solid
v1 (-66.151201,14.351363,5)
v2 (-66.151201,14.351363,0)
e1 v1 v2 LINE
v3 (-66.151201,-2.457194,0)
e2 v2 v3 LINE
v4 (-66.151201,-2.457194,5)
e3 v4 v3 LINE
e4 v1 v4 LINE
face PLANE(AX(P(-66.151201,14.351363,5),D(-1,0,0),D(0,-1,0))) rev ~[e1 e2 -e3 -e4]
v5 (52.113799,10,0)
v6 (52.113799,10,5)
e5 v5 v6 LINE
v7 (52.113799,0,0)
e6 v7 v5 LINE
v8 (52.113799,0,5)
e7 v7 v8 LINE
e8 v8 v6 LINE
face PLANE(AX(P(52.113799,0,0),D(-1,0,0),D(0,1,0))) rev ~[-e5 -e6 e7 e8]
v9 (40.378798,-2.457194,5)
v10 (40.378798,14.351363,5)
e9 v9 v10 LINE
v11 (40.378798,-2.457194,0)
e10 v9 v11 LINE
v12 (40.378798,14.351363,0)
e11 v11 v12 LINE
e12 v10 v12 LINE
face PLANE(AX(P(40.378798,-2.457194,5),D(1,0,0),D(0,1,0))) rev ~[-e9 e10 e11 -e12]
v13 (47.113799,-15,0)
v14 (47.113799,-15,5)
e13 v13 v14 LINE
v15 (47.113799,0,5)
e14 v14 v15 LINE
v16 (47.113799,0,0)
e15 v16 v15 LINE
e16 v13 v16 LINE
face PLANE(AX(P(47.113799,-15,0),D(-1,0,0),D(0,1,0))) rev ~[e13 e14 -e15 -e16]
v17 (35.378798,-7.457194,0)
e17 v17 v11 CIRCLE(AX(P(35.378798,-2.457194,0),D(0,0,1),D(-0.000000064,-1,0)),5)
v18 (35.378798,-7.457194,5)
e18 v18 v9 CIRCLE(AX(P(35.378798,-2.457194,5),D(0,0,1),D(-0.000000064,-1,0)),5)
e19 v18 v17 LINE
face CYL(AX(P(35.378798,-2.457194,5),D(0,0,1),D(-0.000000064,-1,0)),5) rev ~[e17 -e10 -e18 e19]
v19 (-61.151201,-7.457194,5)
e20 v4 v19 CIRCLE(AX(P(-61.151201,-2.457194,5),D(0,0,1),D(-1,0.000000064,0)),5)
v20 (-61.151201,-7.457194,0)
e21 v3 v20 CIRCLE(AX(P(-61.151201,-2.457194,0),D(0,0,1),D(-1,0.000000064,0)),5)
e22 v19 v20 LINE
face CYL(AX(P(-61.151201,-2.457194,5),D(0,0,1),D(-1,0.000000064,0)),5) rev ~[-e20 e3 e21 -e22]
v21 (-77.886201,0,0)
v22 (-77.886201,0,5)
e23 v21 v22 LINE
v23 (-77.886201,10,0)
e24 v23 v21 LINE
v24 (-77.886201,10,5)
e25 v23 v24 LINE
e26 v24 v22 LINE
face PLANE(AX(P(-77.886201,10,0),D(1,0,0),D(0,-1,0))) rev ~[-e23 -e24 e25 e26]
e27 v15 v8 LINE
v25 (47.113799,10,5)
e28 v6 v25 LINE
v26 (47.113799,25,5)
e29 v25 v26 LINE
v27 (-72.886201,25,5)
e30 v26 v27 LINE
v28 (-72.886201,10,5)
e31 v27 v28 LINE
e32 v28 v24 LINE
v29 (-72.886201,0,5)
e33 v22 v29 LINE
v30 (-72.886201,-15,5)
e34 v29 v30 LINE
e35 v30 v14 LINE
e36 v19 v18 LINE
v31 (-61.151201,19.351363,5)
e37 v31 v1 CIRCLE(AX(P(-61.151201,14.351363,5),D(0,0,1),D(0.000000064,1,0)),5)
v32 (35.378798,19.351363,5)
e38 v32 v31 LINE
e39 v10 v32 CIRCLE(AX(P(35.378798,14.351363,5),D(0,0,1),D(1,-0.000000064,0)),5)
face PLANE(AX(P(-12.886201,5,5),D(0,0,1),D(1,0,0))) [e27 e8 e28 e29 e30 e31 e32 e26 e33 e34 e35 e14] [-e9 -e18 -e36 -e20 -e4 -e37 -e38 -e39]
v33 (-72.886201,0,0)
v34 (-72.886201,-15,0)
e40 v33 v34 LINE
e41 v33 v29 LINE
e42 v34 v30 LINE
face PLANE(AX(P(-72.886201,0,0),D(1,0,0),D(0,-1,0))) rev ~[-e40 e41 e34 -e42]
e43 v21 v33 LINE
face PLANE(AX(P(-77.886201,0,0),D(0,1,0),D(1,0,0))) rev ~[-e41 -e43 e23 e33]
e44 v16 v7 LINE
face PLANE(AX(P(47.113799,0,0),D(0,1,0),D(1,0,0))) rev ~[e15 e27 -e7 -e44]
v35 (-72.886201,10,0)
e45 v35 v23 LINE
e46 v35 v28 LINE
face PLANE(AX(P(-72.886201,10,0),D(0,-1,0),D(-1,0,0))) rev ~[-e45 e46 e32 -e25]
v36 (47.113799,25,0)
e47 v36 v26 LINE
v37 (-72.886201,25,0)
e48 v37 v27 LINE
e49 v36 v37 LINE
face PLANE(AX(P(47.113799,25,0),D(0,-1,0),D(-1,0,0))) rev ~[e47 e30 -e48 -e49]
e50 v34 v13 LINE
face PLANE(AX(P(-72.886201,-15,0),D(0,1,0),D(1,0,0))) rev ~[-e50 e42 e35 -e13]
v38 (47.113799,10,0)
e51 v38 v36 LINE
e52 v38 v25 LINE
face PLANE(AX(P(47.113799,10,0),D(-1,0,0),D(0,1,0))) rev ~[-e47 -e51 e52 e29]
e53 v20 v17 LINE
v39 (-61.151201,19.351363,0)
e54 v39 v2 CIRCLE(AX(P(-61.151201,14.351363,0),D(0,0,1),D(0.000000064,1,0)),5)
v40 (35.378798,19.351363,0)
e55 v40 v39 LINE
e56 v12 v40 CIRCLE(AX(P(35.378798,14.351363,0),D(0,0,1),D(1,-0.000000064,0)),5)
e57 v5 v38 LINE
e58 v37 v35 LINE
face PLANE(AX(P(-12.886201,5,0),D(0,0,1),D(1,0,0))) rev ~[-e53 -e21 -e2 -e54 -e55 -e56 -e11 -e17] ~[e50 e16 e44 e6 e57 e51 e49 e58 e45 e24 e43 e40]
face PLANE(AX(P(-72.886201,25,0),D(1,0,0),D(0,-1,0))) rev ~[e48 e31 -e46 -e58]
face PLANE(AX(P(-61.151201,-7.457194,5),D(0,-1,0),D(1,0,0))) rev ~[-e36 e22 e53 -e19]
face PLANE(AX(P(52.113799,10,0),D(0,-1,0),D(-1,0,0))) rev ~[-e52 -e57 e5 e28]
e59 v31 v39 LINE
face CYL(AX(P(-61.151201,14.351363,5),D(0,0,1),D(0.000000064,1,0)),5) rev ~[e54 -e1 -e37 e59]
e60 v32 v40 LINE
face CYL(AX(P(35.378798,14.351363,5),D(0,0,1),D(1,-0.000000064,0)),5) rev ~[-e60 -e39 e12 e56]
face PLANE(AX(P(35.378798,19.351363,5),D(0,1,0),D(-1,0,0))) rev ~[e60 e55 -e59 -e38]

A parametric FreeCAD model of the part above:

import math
import FreeCAD as App
import Part
import Sketcher
from FreeCAD import Vector
Q = App.Units.Quantity

doc = App.newDocument("Part")
body = doc.addObject("PartDesign::Body", "Body")

# Sketch on XY plane
sketch1 = doc.addObject("Sketcher::SketchObject", "Sketch")
body.addObject(sketch1)
sketch1.AttachmentSupport = (doc.XY_Plane, [""])
sketch1.MapMode = "FlatFace"
sketch1.addGeometry([
    Part.LineSegment(Vector(47.113799, 25, 0), Vector(-72.886201, 25, 0)),  # 0
    Part.LineSegment(Vector(-72.886201, 25, 0), Vector(-72.886201, 10, 0)),  # 1
    Part.LineSegment(Vector(-72.886201, 10, 0), Vector(-77.886201, 10, 0)),  # 2
    Part.LineSegment(Vector(-77.886201, 10, 0), Vector(-77.886201, 0, 0)),  # 3
    Part.LineSegment(Vector(-77.886201, 0, 0), Vector(-72.886201, 0, 0)),  # 4
    Part.LineSegment(Vector(-72.886201, 0, 0), Vector(-72.886201, -15, 0)),  # 5
    Part.LineSegment(Vector(-72.886201, -15, 0), Vector(47.113799, -15, 0)),  # 6
    Part.LineSegment(Vector(47.113799, -15, 0), Vector(47.113799, 0, 0)),  # 7
    Part.LineSegment(Vector(47.113799, 0, 0), Vector(52.113799, 0, 0)),  # 8
    Part.LineSegment(Vector(52.113799, 0, 0), Vector(52.113799, 10, 0)),  # 9
    Part.LineSegment(Vector(52.113799, 10, 0), Vector(47.113799, 10, 0)),  # 10
    Part.LineSegment(Vector(47.113799, 10, 0), Vector(47.113799, 25, 0)),  # 11
    Part.LineSegment(Vector(32.598155, -4.052916, 0), Vector(2.598155, -4.052916, 0)),  # 12
    Part.ArcOfCircle(Part.Circle(Vector(2.598155, 0.947084, 0), Vector(0, 0, 1), 5), math.radians(179.999996), math.radians(270.000004)),  # 13
    Part.LineSegment(Vector(-2.401845, 0.947084, 0), Vector(-2.401845, 10.947084, 0)),  # 14
    Part.ArcOfCircle(Part.Circle(Vector(2.598155, 10.947084, 0), Vector(0, 0, 1), 5), math.radians(89.999996), math.radians(180.000004)),  # 15
    Part.LineSegment(Vector(2.598155, 15.947084, 0), Vector(32.598155, 15.947084, 0)),  # 16
    Part.ArcOfCircle(Part.Circle(Vector(32.598155, 10.947084, 0), Vector(0, 0, 1), 5), math.radians(-0.000004), math.radians(90.000004)),  # 17
    Part.LineSegment(Vector(37.598155, 10.947084, 0), Vector(37.598155, 0.947084, 0)),  # 18
    Part.ArcOfCircle(Part.Circle(Vector(32.598155, 0.947084, 0), Vector(0, 0, 1), 5), math.radians(-90.000004), math.radians(0.000004)),  # 19
    Part.LineSegment(Vector(-62.401845, 0.947084, 0), Vector(-62.401845, 10.947084, 0)),  # 20
    Part.ArcOfCircle(Part.Circle(Vector(-57.401845, 10.947084, 0), Vector(0, 0, 1), 5), math.radians(89.999996), math.radians(180.000004)),  # 21
    Part.LineSegment(Vector(-57.401845, 15.947084, 0), Vector(-27.401845, 15.947084, 0)),  # 22
    Part.ArcOfCircle(Part.Circle(Vector(-27.401845, 10.947082, 0), Vector(0, 0, 1), 5.000002), math.radians(53.972975), math.radians(90.000002)),  # 23
    Part.ArcOfCircle(Part.Circle(Vector(-27.401849, 10.947083, 0), Vector(0, 0, 1), 5.000004), math.radians(0.000015), math.radians(53.972939)),  # 24
    Part.LineSegment(Vector(-22.401845, 10.947084, 0), Vector(-22.401845, 0.947084, 0)),  # 25
    Part.ArcOfCircle(Part.Circle(Vector(-27.401845, 0.947084, 0), Vector(0, 0, 1), 5), math.radians(-90.000004), math.radians(0.000004)),  # 26
    Part.LineSegment(Vector(-27.401845, -4.052916, 0), Vector(-57.401845, -4.052916, 0)),  # 27
    Part.ArcOfCircle(Part.Circle(Vector(-57.401845, 0.947084, 0), Vector(0, 0, 1), 5), math.radians(179.999996), math.radians(270.000004)),  # 28
], False)
sketch1.addConstraint([
    Sketcher.Constraint("Coincident", 0, 2, 1, 1),
    Sketcher.Constraint("Coincident", 1, 2, 2, 1),
    Sketcher.Constraint("Coincident", 2, 2, 3, 1),
    Sketcher.Constraint("Coincident", 3, 2, 4, 1),
    Sketcher.Constraint("Coincident", 4, 2, 5, 1),
    Sketcher.Constraint("Coincident", 5, 2, 6, 1),
    Sketcher.Constraint("Coincident", 6, 2, 7, 1),
    Sketcher.Constraint("Coincident", 7, 2, 8, 1),
    Sketcher.Constraint("Coincident", 8, 2, 9, 1),
    Sketcher.Constraint("Coincident", 9, 2, 10, 1),
    Sketcher.Constraint("Coincident", 10, 2, 11, 1),
    Sketcher.Constraint("Coincident", 11, 2, 0, 1),
    Sketcher.Constraint("Tangent", 12, 2, 13, 2),
    Sketcher.Constraint("Tangent", 13, 1, 14, 1),
    Sketcher.Constraint("Tangent", 14, 2, 15, 2),
    Sketcher.Constraint("Tangent", 15, 1, 16, 1),
    Sketcher.Constraint("Tangent", 16, 2, 17, 2),
    Sketcher.Constraint("Tangent", 17, 1, 18, 1),
    Sketcher.Constraint("Tangent", 18, 2, 19, 2),
    Sketcher.Constraint("Tangent", 19, 1, 12, 1),
    Sketcher.Constraint("Tangent", 20, 2, 21, 2),
    Sketcher.Constraint("Tangent", 21, 1, 22, 1),
    Sketcher.Constraint("Tangent", 22, 2, 23, 2),
    Sketcher.Constraint("Tangent", 23, 1, 24, 2),
    Sketcher.Constraint("Tangent", 24, 1, 25, 1),
    Sketcher.Constraint("Tangent", 25, 2, 26, 2),
    Sketcher.Constraint("Tangent", 26, 1, 27, 1),
    Sketcher.Constraint("Tangent", 27, 2, 28, 2),
    Sketcher.Constraint("Tangent", 28, 1, 20, 1),
    Sketcher.Constraint("Horizontal", 0),
    Sketcher.Constraint("Vertical", 1),
    Sketcher.Constraint("Horizontal", 2),
    Sketcher.Constraint("Vertical", 3),
    Sketcher.Constraint("Horizontal", 4),
    Sketcher.Constraint("Vertical", 5),
    Sketcher.Constraint("Horizontal", 6),
    Sketcher.Constraint("Vertical", 7),
    Sketcher.Constraint("Horizontal", 8),
    Sketcher.Constraint("Vertical", 9),
    Sketcher.Constraint("Horizontal", 10),
    Sketcher.Constraint("Vertical", 11),
    Sketcher.Constraint("Horizontal", 12),
    Sketcher.Constraint("Vertical", 14),
    Sketcher.Constraint("Horizontal", 16),
    Sketcher.Constraint("Vertical", 18),
    Sketcher.Constraint("Vertical", 20),
    Sketcher.Constraint("Horizontal", 22),
    Sketcher.Constraint("Vertical", 25),
    Sketcher.Constraint("Horizontal", 27),
    Sketcher.Constraint("Equal", 13, 15),
    Sketcher.Constraint("Equal", 15, 17),
    Sketcher.Constraint("Equal", 17, 19),
    Sketcher.Constraint("Equal", 19, 21),
    Sketcher.Constraint("Equal", 21, 23),
    Sketcher.Constraint("Equal", 23, 24),
    Sketcher.Constraint("Equal", 23, 26),
    Sketcher.Constraint("Equal", 26, 28),
    Sketcher.Constraint("PointOnObject", 3, 2, -1),
    Sketcher.Constraint("PointOnObject", 7, 2, -1),
    Sketcher.Constraint("Horizontal", 17, 3, 21, 3),
    Sketcher.Constraint("Horizontal", 19, 3, 26, 3),
    Sketcher.Constraint("Horizontal", 2, 2, 9, 2),
    Sketcher.Constraint("Vertical", 1, 2, 4, 2),
    Sketcher.Constraint("Vertical", 7, 2, 10, 2),
    Sketcher.Constraint("Equal", 4, 8),
    Sketcher.Constraint("Equal", 16, 22),
    Sketcher.Constraint("Equal", 1, 5),
    Sketcher.Constraint("Equal", 9, 14),
    Sketcher.Constraint("Radius", 13, Q("5 mm")),
    Sketcher.Constraint("DistanceX", 0, 2, 0, 1, Q("120 mm")),
    Sketcher.Constraint("DistanceX", 2, 2, 2, 1, Q("5 mm")),
    Sketcher.Constraint("DistanceX", 12, 2, 12, 1, Q("30 mm")),
    Sketcher.Constraint("DistanceY", 1, 2, 1, 1, Q("15 mm")),
    Sketcher.Constraint("DistanceY", 3, 2, 3, 1, Q("10 mm")),
    Sketcher.Constraint("DistanceX", 21, 3, 15, 3, Q("60 mm")),
    Sketcher.Constraint("DistanceX", 0, 2, -1, 1, Q("72.886201 mm")),
    Sketcher.Constraint("DistanceY", 23, 1, 22, 2, Q("0.956302 mm")),
    Sketcher.Constraint("DistanceX", 24, 3, -1, 1, Q("27.401849 mm")),
    Sketcher.Constraint("DistanceY", -1, 1, 13, 3, Q("0.947084 mm")),
])
pad1 = doc.addObject("PartDesign::Pad", "Pad")
body.addObject(pad1)
pad1.Profile = sketch1
pad1.Length = 5

# Sketch on XY plane
sketch2 = doc.addObject("Sketcher::SketchObject", "Sketch001")
body.addObject(sketch2)
sketch2.AttachmentSupport = (doc.XY_Plane, [""])
sketch2.MapMode = "FlatFace"
sketch2.AttachmentOffset = App.Placement(Vector(0, 0, 5), App.Rotation())
sketch2.addGeometry([
    Part.ArcOfCircle(Part.Circle(Vector(35.378798, 14.351363, 0), Vector(0, 0, 1), 5), math.radians(-0.000004), math.radians(90.000004)),  # 0
    Part.LineSegment(Vector(35.378798, 19.351363, 0), Vector(-61.151201, 19.351363, 0)),  # 1
    Part.ArcOfCircle(Part.Circle(Vector(-61.151201, 14.351363, 0), Vector(0, 0, 1), 5), math.radians(89.999996), math.radians(180.000004)),  # 2
    Part.LineSegment(Vector(-66.151201, 14.351363, 0), Vector(-66.151201, -2.457194, 0)),  # 3
    Part.ArcOfCircle(Part.Circle(Vector(-61.151201, -2.457194, 0), Vector(0, 0, 1), 5), math.radians(179.999996), math.radians(270.000004)),  # 4
    Part.LineSegment(Vector(-61.151201, -7.457194, 0), Vector(35.378798, -7.457194, 0)),  # 5
    Part.ArcOfCircle(Part.Circle(Vector(35.378798, -2.457194, 0), Vector(0, 0, 1), 5), math.radians(-90.000004), math.radians(0.000004)),  # 6
    Part.LineSegment(Vector(40.378798, -2.457194, 0), Vector(40.378798, 14.351363, 0)),  # 7
    Part.LineSegment(Vector(37.598155, 10.947084, 0), Vector(37.598155, 0.947084, 0)),  # 8
    Part.ArcOfCircle(Part.Circle(Vector(32.598155, 0.947084, 0), Vector(0, 0, 1), 5), math.radians(-90.000004), math.radians(0.000004)),  # 9
    Part.LineSegment(Vector(32.598155, -4.052916, 0), Vector(2.598155, -4.052916, 0)),  # 10
    Part.ArcOfCircle(Part.Circle(Vector(2.598155, 0.947084, 0), Vector(0, 0, 1), 5), math.radians(179.999996), math.radians(270.000004)),  # 11
    Part.LineSegment(Vector(-2.401845, 0.947084, 0), Vector(-2.401845, 10.947084, 0)),  # 12
    Part.ArcOfCircle(Part.Circle(Vector(2.598155, 10.947084, 0), Vector(0, 0, 1), 5), math.radians(89.999996), math.radians(180.000004)),  # 13
    Part.LineSegment(Vector(2.598155, 15.947084, 0), Vector(32.598155, 15.947084, 0)),  # 14
    Part.ArcOfCircle(Part.Circle(Vector(32.598155, 10.947084, 0), Vector(0, 0, 1), 5), math.radians(-0.000004), math.radians(90.000004)),  # 15
    Part.LineSegment(Vector(-27.401845, -4.052916, 0), Vector(-57.401845, -4.052916, 0)),  # 16
    Part.ArcOfCircle(Part.Circle(Vector(-57.401845, 0.947084, 0), Vector(0, 0, 1), 5), math.radians(179.999996), math.radians(270.000004)),  # 17
    Part.LineSegment(Vector(-62.401845, 0.947084, 0), Vector(-62.401845, 10.947084, 0)),  # 18
    Part.ArcOfCircle(Part.Circle(Vector(-57.401845, 10.947084, 0), Vector(0, 0, 1), 5), math.radians(89.999996), math.radians(180.000004)),  # 19
    Part.LineSegment(Vector(-57.401845, 15.947084, 0), Vector(-27.401845, 15.947084, 0)),  # 20
    Part.ArcOfCircle(Part.Circle(Vector(-27.401845, 10.947084, 0), Vector(0, 0, 1), 5), math.radians(-0.000004), math.radians(90.000004)),  # 21
    Part.LineSegment(Vector(-22.401845, 10.947084, 0), Vector(-22.401845, 0.947084, 0)),  # 22
    Part.ArcOfCircle(Part.Circle(Vector(-27.401845, 0.947084, 0), Vector(0, 0, 1), 5), math.radians(-90.000004), math.radians(0.000004)),  # 23
], False)
sketch2.addConstraint([
    Sketcher.Constraint("Tangent", 0, 2, 1, 1),
    Sketcher.Constraint("Tangent", 1, 2, 2, 1),
    Sketcher.Constraint("Tangent", 2, 2, 3, 1),
    Sketcher.Constraint("Tangent", 3, 2, 4, 1),
    Sketcher.Constraint("Tangent", 4, 2, 5, 1),
    Sketcher.Constraint("Tangent", 5, 2, 6, 1),
    Sketcher.Constraint("Tangent", 6, 2, 7, 1),
    Sketcher.Constraint("Tangent", 7, 2, 0, 1),
    Sketcher.Constraint("Tangent", 8, 2, 9, 2),
    Sketcher.Constraint("Tangent", 9, 1, 10, 1),
    Sketcher.Constraint("Tangent", 10, 2, 11, 2),
    Sketcher.Constraint("Tangent", 11, 1, 12, 1),
    Sketcher.Constraint("Tangent", 12, 2, 13, 2),
    Sketcher.Constraint("Tangent", 13, 1, 14, 1),
    Sketcher.Constraint("Tangent", 14, 2, 15, 2),
    Sketcher.Constraint("Tangent", 15, 1, 8, 1),
    Sketcher.Constraint("Tangent", 16, 2, 17, 2),
    Sketcher.Constraint("Tangent", 17, 1, 18, 1),
    Sketcher.Constraint("Tangent", 18, 2, 19, 2),
    Sketcher.Constraint("Tangent", 19, 1, 20, 1),
    Sketcher.Constraint("Tangent", 20, 2, 21, 2),
    Sketcher.Constraint("Tangent", 21, 1, 22, 1),
    Sketcher.Constraint("Tangent", 22, 2, 23, 2),
    Sketcher.Constraint("Tangent", 23, 1, 16, 1),
    Sketcher.Constraint("Horizontal", 1),
    Sketcher.Constraint("Vertical", 3),
    Sketcher.Constraint("Horizontal", 5),
    Sketcher.Constraint("Vertical", 7),
    Sketcher.Constraint("Vertical", 8),
    Sketcher.Constraint("Horizontal", 10),
    Sketcher.Constraint("Vertical", 12),
    Sketcher.Constraint("Horizontal", 14),
    Sketcher.Constraint("Horizontal", 16),
    Sketcher.Constraint("Vertical", 18),
    Sketcher.Constraint("Horizontal", 20),
    Sketcher.Constraint("Vertical", 22),
    Sketcher.Constraint("Equal", 0, 2),
    Sketcher.Constraint("Equal", 2, 4),
    Sketcher.Constraint("Equal", 4, 6),
    Sketcher.Constraint("Equal", 6, 9),
    Sketcher.Constraint("Equal", 9, 11),
    Sketcher.Constraint("Equal", 11, 13),
    Sketcher.Constraint("Equal", 13, 15),
    Sketcher.Constraint("Equal", 15, 17),
    Sketcher.Constraint("Equal", 17, 19),
    Sketcher.Constraint("Equal", 19, 21),
    Sketcher.Constraint("Equal", 21, 23),
    Sketcher.Constraint("Horizontal", 11, 3, 17, 3),
    Sketcher.Constraint("Horizontal", 15, 3, 19, 3),
    Sketcher.Constraint("Equal", 14, 16),
    Sketcher.Constraint("Radius", 0, Q("5 mm")),
    Sketcher.Constraint("DistanceX", 10, 2, 10, 1, Q("30 mm")),
    Sketcher.Constraint("DistanceY", 8, 2, 8, 1, Q("10 mm")),
    Sketcher.Constraint("DistanceX", 17, 3, 11, 3, Q("60 mm")),
    Sketcher.Constraint("DistanceX", 1, 2, 1, 1, Q("96.529999 mm")),
    Sketcher.Constraint("DistanceX", -1, 1, 0, 3, Q("35.378798 mm")),
    Sketcher.Constraint("DistanceY", 3, 2, 3, 1, Q("16.808557 mm")),
    Sketcher.Constraint("DistanceY", 9, 3, 0, 3, Q("13.40428 mm")),
    Sketcher.Constraint("DistanceY", -1, 1, 0, 3, Q("14.351363 mm")),
    Sketcher.Constraint("DistanceX", -1, 1, 9, 3, Q("32.598155 mm")),
])
pocket1 = doc.addObject("PartDesign::Pocket", "Pocket")
body.addObject(pocket1)
pocket1.Profile = sketch2
pocket1.Length = 25

doc.recompute()
